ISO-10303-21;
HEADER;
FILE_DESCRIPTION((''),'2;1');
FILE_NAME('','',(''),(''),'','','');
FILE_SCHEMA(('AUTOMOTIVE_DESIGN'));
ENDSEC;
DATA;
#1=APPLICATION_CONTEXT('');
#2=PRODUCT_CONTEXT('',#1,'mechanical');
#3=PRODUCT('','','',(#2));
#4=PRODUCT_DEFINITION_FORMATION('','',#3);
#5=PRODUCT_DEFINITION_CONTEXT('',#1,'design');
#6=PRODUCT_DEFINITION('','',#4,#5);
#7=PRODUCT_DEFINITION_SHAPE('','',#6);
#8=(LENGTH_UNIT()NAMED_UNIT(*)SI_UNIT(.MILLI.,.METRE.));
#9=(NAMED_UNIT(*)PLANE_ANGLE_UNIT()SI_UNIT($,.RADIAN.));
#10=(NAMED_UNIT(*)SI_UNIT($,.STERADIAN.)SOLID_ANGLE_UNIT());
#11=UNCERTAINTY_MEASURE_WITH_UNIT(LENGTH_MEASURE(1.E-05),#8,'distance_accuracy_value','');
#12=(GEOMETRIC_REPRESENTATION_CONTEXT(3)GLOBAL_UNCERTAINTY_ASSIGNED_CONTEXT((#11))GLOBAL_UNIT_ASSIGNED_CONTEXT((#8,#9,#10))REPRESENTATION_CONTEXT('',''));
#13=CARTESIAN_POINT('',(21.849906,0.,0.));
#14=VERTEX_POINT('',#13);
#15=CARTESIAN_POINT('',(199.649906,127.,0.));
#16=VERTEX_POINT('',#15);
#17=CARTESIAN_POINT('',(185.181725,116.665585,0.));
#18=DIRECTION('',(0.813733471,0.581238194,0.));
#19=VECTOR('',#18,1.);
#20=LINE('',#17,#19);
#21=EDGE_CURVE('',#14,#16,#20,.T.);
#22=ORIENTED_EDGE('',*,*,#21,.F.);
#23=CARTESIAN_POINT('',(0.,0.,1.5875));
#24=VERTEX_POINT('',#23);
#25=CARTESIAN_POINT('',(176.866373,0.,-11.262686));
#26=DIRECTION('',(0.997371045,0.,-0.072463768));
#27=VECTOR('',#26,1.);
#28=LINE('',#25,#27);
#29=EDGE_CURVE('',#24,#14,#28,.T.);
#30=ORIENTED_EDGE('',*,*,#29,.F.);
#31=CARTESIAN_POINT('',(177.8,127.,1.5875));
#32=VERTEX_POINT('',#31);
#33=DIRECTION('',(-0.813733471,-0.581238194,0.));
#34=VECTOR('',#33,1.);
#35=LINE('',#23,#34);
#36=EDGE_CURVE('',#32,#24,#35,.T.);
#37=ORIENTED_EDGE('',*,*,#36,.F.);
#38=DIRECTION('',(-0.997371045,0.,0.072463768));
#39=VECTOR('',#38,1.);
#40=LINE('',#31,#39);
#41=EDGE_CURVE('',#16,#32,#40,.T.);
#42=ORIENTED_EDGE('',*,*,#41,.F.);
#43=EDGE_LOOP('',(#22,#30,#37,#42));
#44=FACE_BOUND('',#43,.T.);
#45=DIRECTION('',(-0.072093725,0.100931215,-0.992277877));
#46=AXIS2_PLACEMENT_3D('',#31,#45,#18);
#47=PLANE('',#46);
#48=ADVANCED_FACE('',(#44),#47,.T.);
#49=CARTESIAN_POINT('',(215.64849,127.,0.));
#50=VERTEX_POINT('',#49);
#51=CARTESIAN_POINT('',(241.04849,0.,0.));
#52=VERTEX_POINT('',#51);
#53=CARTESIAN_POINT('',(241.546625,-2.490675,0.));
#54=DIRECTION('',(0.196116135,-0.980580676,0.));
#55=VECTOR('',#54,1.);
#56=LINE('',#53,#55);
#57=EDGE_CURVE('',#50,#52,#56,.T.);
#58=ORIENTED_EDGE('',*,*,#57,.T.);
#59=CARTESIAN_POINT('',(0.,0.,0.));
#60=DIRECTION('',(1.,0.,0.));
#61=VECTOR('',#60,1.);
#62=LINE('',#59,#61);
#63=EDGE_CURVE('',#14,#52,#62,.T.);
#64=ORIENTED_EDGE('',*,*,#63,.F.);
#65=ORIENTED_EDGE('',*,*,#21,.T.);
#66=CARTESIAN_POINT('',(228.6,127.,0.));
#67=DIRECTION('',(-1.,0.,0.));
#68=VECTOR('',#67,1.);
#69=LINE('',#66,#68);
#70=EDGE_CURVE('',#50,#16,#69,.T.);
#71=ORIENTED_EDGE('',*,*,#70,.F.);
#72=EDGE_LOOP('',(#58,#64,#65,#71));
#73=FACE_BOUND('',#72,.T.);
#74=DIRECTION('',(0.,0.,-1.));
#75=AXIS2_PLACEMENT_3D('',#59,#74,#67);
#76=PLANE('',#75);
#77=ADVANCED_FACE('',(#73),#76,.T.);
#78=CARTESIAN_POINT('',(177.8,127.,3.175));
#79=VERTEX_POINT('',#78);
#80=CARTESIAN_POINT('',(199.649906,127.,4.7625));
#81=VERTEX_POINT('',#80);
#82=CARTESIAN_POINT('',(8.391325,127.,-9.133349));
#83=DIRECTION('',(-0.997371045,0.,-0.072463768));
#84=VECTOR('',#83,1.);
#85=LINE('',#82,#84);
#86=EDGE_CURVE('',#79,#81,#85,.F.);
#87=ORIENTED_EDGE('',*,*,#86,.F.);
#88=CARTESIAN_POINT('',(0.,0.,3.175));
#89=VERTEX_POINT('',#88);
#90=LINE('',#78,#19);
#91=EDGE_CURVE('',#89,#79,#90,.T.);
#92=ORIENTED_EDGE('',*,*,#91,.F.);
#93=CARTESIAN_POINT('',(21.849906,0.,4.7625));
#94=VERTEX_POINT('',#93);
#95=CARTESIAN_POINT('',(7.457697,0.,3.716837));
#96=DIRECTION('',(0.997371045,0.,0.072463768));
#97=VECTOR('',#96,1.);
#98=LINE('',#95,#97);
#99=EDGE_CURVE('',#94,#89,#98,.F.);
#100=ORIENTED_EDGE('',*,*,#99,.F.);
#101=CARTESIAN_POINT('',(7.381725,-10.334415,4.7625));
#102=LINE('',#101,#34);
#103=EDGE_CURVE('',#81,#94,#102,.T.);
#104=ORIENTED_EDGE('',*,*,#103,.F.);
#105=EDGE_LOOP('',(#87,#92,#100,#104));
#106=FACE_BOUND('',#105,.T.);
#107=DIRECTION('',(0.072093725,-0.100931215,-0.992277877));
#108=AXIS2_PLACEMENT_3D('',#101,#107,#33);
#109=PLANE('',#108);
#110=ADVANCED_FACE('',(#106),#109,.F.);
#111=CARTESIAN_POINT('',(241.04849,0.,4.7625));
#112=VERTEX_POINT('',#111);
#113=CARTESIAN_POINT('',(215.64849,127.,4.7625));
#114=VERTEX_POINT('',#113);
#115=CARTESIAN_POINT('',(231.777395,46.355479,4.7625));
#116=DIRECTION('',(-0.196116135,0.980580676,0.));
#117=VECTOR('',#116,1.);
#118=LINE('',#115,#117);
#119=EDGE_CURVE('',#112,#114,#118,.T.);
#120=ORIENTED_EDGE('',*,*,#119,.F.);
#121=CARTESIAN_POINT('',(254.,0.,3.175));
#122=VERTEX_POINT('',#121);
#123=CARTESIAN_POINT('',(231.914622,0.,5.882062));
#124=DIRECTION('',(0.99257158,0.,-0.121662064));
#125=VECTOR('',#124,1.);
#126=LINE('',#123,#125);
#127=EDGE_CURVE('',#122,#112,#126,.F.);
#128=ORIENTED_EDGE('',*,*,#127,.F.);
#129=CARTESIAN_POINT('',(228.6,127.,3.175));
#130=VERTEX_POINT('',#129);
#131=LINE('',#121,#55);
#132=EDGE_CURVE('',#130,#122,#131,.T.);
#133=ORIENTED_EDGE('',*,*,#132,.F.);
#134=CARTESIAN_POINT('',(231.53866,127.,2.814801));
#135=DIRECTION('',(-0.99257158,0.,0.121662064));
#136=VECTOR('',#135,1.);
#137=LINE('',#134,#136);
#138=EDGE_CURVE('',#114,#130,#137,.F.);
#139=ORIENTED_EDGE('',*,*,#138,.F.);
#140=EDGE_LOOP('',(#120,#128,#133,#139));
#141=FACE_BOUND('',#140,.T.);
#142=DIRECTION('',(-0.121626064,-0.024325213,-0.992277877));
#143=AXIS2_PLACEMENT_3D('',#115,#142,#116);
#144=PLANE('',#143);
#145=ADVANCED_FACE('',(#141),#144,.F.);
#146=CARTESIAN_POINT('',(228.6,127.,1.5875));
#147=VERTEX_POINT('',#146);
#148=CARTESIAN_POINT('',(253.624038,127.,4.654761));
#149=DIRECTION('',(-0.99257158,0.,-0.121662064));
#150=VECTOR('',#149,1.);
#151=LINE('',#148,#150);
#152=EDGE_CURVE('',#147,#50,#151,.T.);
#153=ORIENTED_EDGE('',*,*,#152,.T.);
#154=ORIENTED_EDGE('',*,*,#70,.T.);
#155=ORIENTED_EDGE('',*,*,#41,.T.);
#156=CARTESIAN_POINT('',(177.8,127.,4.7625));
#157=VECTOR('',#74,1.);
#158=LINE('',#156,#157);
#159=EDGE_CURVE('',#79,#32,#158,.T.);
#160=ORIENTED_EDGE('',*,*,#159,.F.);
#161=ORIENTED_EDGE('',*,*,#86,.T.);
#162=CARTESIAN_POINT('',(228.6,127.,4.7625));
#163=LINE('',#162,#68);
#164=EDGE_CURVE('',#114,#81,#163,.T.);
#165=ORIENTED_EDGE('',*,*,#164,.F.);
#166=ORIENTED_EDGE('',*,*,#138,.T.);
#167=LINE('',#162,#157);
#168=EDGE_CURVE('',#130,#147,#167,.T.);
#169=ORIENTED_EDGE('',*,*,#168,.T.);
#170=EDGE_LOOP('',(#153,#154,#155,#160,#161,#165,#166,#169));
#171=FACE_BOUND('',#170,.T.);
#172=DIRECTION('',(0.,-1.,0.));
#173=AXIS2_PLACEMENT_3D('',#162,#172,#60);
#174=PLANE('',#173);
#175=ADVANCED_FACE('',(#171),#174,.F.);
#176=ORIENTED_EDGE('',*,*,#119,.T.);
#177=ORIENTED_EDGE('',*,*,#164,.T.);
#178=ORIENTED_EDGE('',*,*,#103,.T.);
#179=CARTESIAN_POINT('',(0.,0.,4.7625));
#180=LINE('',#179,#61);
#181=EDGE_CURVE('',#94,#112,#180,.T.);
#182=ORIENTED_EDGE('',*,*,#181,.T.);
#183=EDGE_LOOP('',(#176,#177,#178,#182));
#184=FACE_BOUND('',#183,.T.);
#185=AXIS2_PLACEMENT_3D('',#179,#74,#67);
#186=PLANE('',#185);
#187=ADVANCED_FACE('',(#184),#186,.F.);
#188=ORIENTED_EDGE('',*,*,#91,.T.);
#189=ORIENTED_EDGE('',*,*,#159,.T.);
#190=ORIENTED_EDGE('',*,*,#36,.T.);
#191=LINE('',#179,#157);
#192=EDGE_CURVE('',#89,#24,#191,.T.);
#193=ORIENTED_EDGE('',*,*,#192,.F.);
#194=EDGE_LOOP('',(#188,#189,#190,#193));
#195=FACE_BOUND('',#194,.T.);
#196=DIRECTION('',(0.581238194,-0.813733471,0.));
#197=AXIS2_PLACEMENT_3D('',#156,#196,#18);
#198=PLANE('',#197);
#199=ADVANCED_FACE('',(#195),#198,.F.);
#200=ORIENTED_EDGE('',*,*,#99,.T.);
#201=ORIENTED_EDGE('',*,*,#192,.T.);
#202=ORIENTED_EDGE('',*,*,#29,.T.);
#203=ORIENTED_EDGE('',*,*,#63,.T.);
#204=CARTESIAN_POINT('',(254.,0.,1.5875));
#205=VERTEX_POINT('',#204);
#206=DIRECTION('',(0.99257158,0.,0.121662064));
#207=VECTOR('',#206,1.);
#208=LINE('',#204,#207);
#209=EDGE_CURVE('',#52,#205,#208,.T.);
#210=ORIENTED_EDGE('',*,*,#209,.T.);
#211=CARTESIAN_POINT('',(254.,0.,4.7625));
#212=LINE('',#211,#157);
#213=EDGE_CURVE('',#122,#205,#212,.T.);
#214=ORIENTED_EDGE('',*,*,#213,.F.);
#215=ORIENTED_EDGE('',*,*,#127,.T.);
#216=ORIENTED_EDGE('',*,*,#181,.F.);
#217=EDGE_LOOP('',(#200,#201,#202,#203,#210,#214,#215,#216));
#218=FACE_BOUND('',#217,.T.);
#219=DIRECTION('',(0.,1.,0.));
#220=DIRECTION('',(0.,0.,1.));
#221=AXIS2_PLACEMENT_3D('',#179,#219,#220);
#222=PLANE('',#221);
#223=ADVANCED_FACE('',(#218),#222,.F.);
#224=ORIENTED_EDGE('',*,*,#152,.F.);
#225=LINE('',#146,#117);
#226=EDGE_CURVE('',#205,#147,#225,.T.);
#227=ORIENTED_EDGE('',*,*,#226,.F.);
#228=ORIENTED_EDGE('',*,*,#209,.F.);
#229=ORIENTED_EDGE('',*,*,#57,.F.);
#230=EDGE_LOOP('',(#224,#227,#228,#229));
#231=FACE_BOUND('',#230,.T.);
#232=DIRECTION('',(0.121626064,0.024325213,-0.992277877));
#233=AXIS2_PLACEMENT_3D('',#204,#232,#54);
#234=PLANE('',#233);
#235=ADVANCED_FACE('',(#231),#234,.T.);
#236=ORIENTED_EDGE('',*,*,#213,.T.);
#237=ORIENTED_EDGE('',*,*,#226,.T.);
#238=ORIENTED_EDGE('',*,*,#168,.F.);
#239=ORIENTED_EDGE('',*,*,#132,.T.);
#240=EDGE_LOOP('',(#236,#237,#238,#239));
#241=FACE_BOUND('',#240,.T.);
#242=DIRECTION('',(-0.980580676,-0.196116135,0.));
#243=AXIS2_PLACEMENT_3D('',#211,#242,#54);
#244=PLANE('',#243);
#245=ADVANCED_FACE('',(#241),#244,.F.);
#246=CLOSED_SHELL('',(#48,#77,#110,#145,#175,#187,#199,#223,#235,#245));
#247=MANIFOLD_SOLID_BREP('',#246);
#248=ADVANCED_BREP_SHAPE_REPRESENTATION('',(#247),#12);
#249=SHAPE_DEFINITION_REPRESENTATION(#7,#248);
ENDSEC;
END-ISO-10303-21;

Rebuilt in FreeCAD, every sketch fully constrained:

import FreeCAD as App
import Part
import Sketcher
from FreeCAD import Vector
Q = App.Units.Quantity


def edges_at(feature, points):
    """Names of the edges that pass closest to the given points."""
    edges = feature.Shape.Edges
    near = lambda p: min(range(len(edges)), key=lambda i: edges[i].distToShape(Part.Vertex(*p))[0])
    return sorted({f"Edge{near(p) + 1}" for p in points})


def add_polygon(sketch, points):
    """Adds a closed chain of lines whose ends are joined by coincident constraints."""
    first, n = sketch.GeometryCount, len(points)
    for a, b in zip(points, points[1:] + points[:1]):
        sketch.addGeometry(Part.LineSegment(App.Vector(*a, 0), App.Vector(*b, 0)), False)
    for i in range(n):
        sketch.addConstraint(Sketcher.Constraint("Coincident", first + i, 2, first + (i + 1) % n, 1))

doc = App.newDocument("Part")
params = doc.addObject("Spreadsheet::Sheet", "Params")
for row, (alias, value) in enumerate([
    ("sketch1_width", "10 in"),
    ("sketch1_width2", "2 in"),
    ("pad1_length", "0.1875 in"),
    ("chamfer_size", "0.0625 in"),
    ("chamfer_size2", "0.5 in"),
    ("chamfer2_size", "0.0625 in"),
    ("chamfer2_size2", "0.5 in"),
], start=1):
    params.set(f"A{row}", alias)
    params.set(f"B{row}", "=" + value)
    params.setAlias(f"B{row}", alias)

body = doc.addObject("PartDesign::Body", "Body")

sketch1 = body.newObject("Sketcher::SketchObject", "Sketch")
sketch1.AttachmentSupport = (doc.getObject("XY_Plane"), [""])
sketch1.MapMode = "FlatFace"
add_polygon(sketch1, [(0, 0), (254, 0), (229, 127), (178, 127)])
sketch1.addConstraint(Sketcher.Constraint("Horizontal", 0))
sketch1.addConstraint(Sketcher.Constraint("Horizontal", 2))
sketch1.addConstraint(Sketcher.Constraint("Coincident", 3, 2, -1, 1))
sketch1.addConstraint(Sketcher.Constraint("DistanceX", 0, 1, 0, 2, Q("10 in")))
sketch1.addConstraint(Sketcher.Constraint("DistanceX", 2, 2, 2, 1, Q("2 in")))
sketch1.addConstraint(Sketcher.Constraint("DistanceX", -1, 1, 1, 2, Q("9 in")))
sketch1.addConstraint(Sketcher.Constraint("DistanceY", -1, 1, 1, 2, Q("5 in")))
sketch1.setExpression("Constraints[7]", "Params.sketch1_width")
sketch1.setExpression("Constraints[8]", "Params.sketch1_width2")
pad1 = body.newObject("PartDesign::Pad", "Pad")
pad1.Profile = sketch1
pad1.setExpression("Length", "Params.pad1_length")
doc.recompute()

chamfer = body.newObject("PartDesign::Chamfer", "Chamfer")
chamfer.Base = (pad1, edges_at(pad1, [(88.9, 63.5, 4.763), (88.9, 63.5, 0)]))
chamfer.ChamferType = "Two distances"
chamfer.setExpression("Size", "Params.chamfer_size")
chamfer.setExpression("Size2", "Params.chamfer_size2")
doc.recompute()

chamfer2 = body.newObject("PartDesign::Chamfer", "Chamfer001")
chamfer2.Base = (chamfer, edges_at(chamfer, [(241.3, 63.5, 4.763), (241.3, 63.5, 0)]))
chamfer2.ChamferType = "Two distances"
chamfer2.setExpression("Size", "Params.chamfer2_size")
chamfer2.setExpression("Size2", "Params.chamfer2_size2")
chamfer2.FlipDirection = True

doc.recompute()
